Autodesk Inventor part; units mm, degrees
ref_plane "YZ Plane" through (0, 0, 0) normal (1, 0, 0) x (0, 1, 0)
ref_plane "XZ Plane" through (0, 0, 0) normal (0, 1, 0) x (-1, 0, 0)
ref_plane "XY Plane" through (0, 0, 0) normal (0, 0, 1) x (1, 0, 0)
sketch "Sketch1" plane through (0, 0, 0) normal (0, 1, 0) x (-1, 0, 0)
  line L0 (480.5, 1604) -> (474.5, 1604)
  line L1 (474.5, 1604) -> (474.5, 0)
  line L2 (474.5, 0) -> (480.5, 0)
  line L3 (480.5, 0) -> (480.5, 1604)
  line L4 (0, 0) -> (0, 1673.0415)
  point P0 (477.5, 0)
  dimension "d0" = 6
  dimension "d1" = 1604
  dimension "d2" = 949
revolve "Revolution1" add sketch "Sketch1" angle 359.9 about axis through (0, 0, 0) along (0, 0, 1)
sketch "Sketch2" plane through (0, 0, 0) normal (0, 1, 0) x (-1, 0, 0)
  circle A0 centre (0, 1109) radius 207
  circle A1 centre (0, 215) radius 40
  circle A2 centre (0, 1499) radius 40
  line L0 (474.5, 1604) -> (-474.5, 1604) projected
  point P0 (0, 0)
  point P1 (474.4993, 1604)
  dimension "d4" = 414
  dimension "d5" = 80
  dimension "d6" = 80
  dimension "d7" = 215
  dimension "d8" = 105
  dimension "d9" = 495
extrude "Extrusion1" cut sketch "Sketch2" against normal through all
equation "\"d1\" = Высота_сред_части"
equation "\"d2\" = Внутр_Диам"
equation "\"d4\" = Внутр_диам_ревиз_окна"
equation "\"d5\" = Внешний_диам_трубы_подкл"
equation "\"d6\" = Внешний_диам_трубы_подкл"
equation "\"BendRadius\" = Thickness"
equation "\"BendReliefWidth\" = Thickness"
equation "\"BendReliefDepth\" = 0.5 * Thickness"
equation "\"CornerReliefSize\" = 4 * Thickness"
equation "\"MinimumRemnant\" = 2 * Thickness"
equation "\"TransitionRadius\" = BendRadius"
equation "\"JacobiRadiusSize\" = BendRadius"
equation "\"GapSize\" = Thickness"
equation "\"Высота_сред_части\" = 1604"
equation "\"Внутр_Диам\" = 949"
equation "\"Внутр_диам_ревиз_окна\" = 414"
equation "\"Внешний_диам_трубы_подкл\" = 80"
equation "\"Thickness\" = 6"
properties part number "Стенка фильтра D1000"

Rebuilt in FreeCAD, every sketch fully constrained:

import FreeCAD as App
import Part
import Sketcher

V = App.Vector
Q = App.Units.Quantity


def add_polygon(sketch, points):
    """Adds a closed chain of lines whose ends are joined by coincident constraints."""
    first, n = sketch.GeometryCount, len(points)
    for a, b in zip(points, points[1:] + points[:1]):
        sketch.addGeometry(Part.LineSegment(App.Vector(*a, 0), App.Vector(*b, 0)), False)
    for i in range(n):
        sketch.addConstraint(Sketcher.Constraint("Coincident", first + i, 2, first + (i + 1) % n, 1))

doc = App.newDocument("Part")
params = doc.addObject("Spreadsheet::Sheet", "Params")
for row, (alias, value) in enumerate([
    ("sketch1_width", "6 mm"),
    ("sketch1_height", "1604 mm"),
    ("revolution_angle", "359.9 deg"),
    ("sketch2_diameter", "414 mm"),
    ("sketch2_diameter2", "80 mm"),
], start=1):
    params.set(f"A{row}", alias)
    params.set(f"B{row}", "=" + value)
    params.setAlias(f"B{row}", alias)

body = doc.addObject("PartDesign::Body", "Body")

sketch1 = body.newObject("Sketcher::SketchObject", "Sketch")
sketch1.AttachmentSupport = (doc.getObject("XZ_Plane"), [""])
sketch1.MapMode = "FlatFace"
add_polygon(sketch1, [(-480, 0), (-480, 1604), (-474, 1604), (-474, 0)])
sketch1.addConstraint([
    Sketcher.Constraint("Vertical", 0),
    Sketcher.Constraint("Horizontal", 1),
    Sketcher.Constraint("Vertical", 2),
    Sketcher.Constraint("Horizontal", 3),
    Sketcher.Constraint("PointOnObject", 2, 2, -1),
    Sketcher.Constraint("DistanceX", 1, 1, 1, 2, Q("6 mm")),
    Sketcher.Constraint("DistanceY", 0, 1, 0, 2, Q("1604 mm")),
    Sketcher.Constraint("DistanceX", 0, 2, -1, 1, Q("480.5 mm")),
])
sketch1.setExpression("Constraints[9]", "Params.sketch1_width")
sketch1.setExpression("Constraints[10]", "Params.sketch1_height")
revolution = body.newObject("PartDesign::Revolution", "Revolution")
revolution.Profile = sketch1
revolution.ReferenceAxis = (sketch1, ["V_Axis"])
revolution.setExpression("Angle", "Params.revolution_angle")

sketch2 = body.newObject("Sketcher::SketchObject", "Sketch001")
sketch2.AttachmentSupport = (doc.getObject("XZ_Plane"), [""])
sketch2.MapMode = "FlatFace"
sketch2.addGeometry([
    Part.Circle(V(0, 1109, 0), V(0, 0, 1), 207),
    Part.Circle(V(0, 215, 0), V(0, 0, 1), 40),
    Part.Circle(V(0, 1499, 0), V(0, 0, 1), 40),
], False)
sketch2.addConstraint([
    Sketcher.Constraint("Equal", 1, 2),
    Sketcher.Constraint("PointOnObject", 0, 3, -2),
    Sketcher.Constraint("PointOnObject", 1, 3, -2),
    Sketcher.Constraint("PointOnObject", 2, 3, -2),
    Sketcher.Constraint("Diameter", 0, Q("414 mm")),
    Sketcher.Constraint("Diameter", 1, Q("80 mm")),
    Sketcher.Constraint("DistanceY", -1, 1, 1, 3, Q("215 mm")),
    Sketcher.Constraint("DistanceY", -1, 1, 0, 3, Q("1109 mm")),
    Sketcher.Constraint("DistanceY", -1, 1, 2, 3, Q("1499 mm")),
])
sketch2.setExpression("Constraints[4]", "Params.sketch2_diameter")
sketch2.setExpression("Constraints[5]", "Params.sketch2_diameter2")
pocket1 = body.newObject("PartDesign::Pocket", "Pocket")
pocket1.Profile = sketch2
pocket1.Type = "ThroughAll"
pocket1.Reversed = True

doc.recompute()
